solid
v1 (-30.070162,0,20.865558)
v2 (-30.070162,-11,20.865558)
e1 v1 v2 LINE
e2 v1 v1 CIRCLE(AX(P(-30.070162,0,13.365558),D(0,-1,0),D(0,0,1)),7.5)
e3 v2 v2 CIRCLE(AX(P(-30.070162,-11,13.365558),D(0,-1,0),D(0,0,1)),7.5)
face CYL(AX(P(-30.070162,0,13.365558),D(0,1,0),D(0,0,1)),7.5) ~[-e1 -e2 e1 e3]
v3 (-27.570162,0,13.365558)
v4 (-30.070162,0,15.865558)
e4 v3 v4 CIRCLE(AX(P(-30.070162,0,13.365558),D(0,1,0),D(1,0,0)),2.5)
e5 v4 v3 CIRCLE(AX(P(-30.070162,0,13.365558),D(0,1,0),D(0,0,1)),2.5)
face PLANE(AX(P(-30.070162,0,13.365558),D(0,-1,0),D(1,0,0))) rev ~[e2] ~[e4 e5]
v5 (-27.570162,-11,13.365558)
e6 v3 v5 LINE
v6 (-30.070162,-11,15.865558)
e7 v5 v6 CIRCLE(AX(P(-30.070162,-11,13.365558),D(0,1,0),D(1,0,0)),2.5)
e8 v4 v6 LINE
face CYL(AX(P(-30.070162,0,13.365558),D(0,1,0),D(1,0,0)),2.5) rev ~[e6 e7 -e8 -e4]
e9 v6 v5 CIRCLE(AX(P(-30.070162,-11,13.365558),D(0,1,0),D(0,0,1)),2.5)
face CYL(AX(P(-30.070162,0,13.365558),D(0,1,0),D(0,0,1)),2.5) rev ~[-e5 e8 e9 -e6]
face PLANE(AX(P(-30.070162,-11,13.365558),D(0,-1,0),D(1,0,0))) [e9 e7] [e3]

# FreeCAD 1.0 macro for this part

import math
import FreeCAD as App
import Part
import Sketcher

doc = App.newDocument("Part")
params = doc.addObject("Spreadsheet::Sheet", "Params")
for row, (alias, value) in enumerate([
    ("sketch1_diameter", "15 mm"),
    ("sketch1_radius", "79 mm"),
    ("pad1_length", "8 mm"),
    ("sketch2_radius", "79 mm"),
    ("sketch2_radius2", "2 mm"),
    ("pad2_length", "3 mm"),
    ("sketch3_diameter", "15 mm"),
    ("sketch3_radius", "2.5 mm"),
    ("pad3_length", "11 mm"),
], start=1):
    params.set(f"A{row}", alias)
    params.set(f"B{row}", "=" + value)
    params.setAlias(f"B{row}", alias)

body = doc.addObject("PartDesign::Body", "Body")

# Sketch on XZ plane
sketch1 = body.newObject("Sketcher::SketchObject", "Sketch")
sketch1.AttachmentSupport = (doc.getObject("XZ_Plane"), [""])
sketch1.MapMode = "FlatFace"
sketch1.addGeometry(Part.ArcOfCircle(Part.Circle(App.Vector(-30, 125, 0), App.Vector(0, 0, 1), 79), math.radians(-98.07), math.radians(-90)), False)
sketch1.addGeometry(Part.ArcOfCircle(Part.Circle(App.Vector(-30, 13, 0), App.Vector(0, 0, 1), 36), math.radians(108), math.radians(432)), False)
sketch1.addGeometry(Part.ArcOfCircle(Part.Circle(App.Vector(-30, 125, 0), App.Vector(0, 0, 1), 79), math.radians(-90), math.radians(-81.93)), False)
sketch1.addGeometry(Part.Circle(App.Vector(-30, 13, 0), App.Vector(0, 0, 1), 8), False)
sketch1.addConstraint(Sketcher.Constraint("Coincident", 0, 1, 1, 1))
sketch1.addConstraint(Sketcher.Constraint("Coincident", 1, 2, 2, 2))
sketch1.addConstraint(Sketcher.Constraint("Tangent", 2, 1, 0, 2))
sketch1.addConstraint(Sketcher.Constraint("Coincident", 3, 3, 1, 3))
sketch1.addConstraint(Sketcher.Constraint("Equal", 0, 2))
sketch1.addConstraint(Sketcher.Constraint("Horizontal", 0, 1, 1, 2))
sketch1.addConstraint(Sketcher.Constraint("Vertical", 3, 3, 2, 1))
sketch1.addConstraint(Sketcher.Constraint("Diameter", 3, 15.0))
sketch1.addConstraint(Sketcher.Constraint("Radius", 0, 79.0))
sketch1.addConstraint(Sketcher.Constraint("Radius", 1, 35.565326))
sketch1.addConstraint(Sketcher.Constraint("DistanceX", 0, 3, -1, 1, 30.070162))
sketch1.addConstraint(Sketcher.Constraint("DistanceY", -1, 1, 0, 3, 125.37237))
sketch1.addConstraint(Sketcher.Constraint("DistanceY", -1, 1, 1, 3, 13.365558))
sketch1.setExpression("Constraints[7]", "Params.sketch1_diameter")
sketch1.setExpression("Constraints[8]", "Params.sketch1_radius")
pad1 = body.newObject("PartDesign::Pad", "Pad")
pad1.Profile = sketch1
pad1.setExpression("Length", "Params.pad1_length")

# Sketch on XZ plane
sketch2 = body.newObject("Sketcher::SketchObject", "Sketch001")
sketch2.AttachmentSupport = (doc.getObject("XZ_Plane"), [""])
sketch2.MapMode = "FlatFace"
sketch2.addGeometry(Part.ArcOfCircle(Part.Circle(App.Vector(-28.6, 43.2, 0), App.Vector(0, 0, 1), 13.2), math.radians(96), math.radians(162)), False)
sketch2.addGeometry(Part.ArcOfCircle(Part.Circle(App.Vector(-30.1, 125.4, 0), App.Vector(0, 0, 1), 79), math.radians(-98.07), math.radians(-90)), False)
sketch2.addGeometry(Part.ArcOfCircle(Part.Circle(App.Vector(-30.1, 125.4, 0), App.Vector(0, 0, 1), 79), math.radians(-90), math.radians(-81.93)), False)
sketch2.addGeometry(Part.ArcOfCircle(Part.Circle(App.Vector(-31.6, 43.2, 0), App.Vector(0, 0, 1), 13.2), math.radians(18), math.radians(84)), False)
sketch2.addGeometry(Part.ArcOfCircle(Part.Circle(App.Vector(-30.1, 52.7, 0), App.Vector(0, 0, 1), 2), math.radians(90), math.radians(270)), False)
sketch2.addGeometry(Part.ArcOfCircle(Part.Circle(App.Vector(-30.1, 52.7, 0), App.Vector(0, 0, 1), 2), math.radians(0), math.radians(90)), False)
sketch2.addGeometry(Part.ArcOfCircle(Part.Circle(App.Vector(-30.1, 52.7, 0), App.Vector(0, 0, 1), 2), math.radians(-90), math.radians(0)), False)
sketch2.addConstraint(Sketcher.Constraint("Coincident", 0, 2, 1, 1))
sketch2.addConstraint(Sketcher.Constraint("Tangent", 1, 2, 2, 1))
sketch2.addConstraint(Sketcher.Constraint("Coincident", 2, 2, 3, 1))
sketch2.addConstraint(Sketcher.Constraint("Coincident", 3, 2, 0, 1))
sketch2.addConstraint(Sketcher.Constraint("Tangent", 4, 1, 5, 2))
sketch2.addConstraint(Sketcher.Constraint("Tangent", 5, 1, 6, 2))
sketch2.addConstraint(Sketcher.Constraint("Tangent", 6, 1, 4, 2))
sketch2.addConstraint(Sketcher.Constraint("Equal", 1, 2))
sketch2.addConstraint(Sketcher.Constraint("Equal", 0, 3))
sketch2.addConstraint(Sketcher.Constraint("Horizontal", 0, 3, 3, 3))
sketch2.addConstraint(Sketcher.Constraint("Horizontal", 0, 2, 2, 2))
sketch2.addConstraint(Sketcher.Constraint("Horizontal", 6, 3, 5, 1))
sketch2.addConstraint(Sketcher.Constraint("Vertical", 2, 3, 4, 3))
sketch2.addConstraint(Sketcher.Constraint("Vertical", 6, 3, 1, 2))
sketch2.addConstraint(Sketcher.Constraint("Vertical", 3, 2, 4, 1))
sketch2.addConstraint(Sketcher.Constraint("Vertical", 4, 1, 6, 1))
sketch2.addConstraint(Sketcher.Constraint("Radius", 1, 79.0))
sketch2.addConstraint(Sketcher.Constraint("Radius", 4, 2.0))
sketch2.addConstraint(Sketcher.Constraint("Radius", 0, 13.212))
sketch2.addConstraint(Sketcher.Constraint("DistanceX", 0, 3, -1, 1, 28.5756))
sketch2.addConstraint(Sketcher.Constraint("DistanceX", 1, 3, -1, 1, 30.070162))
sketch2.addConstraint(Sketcher.Constraint("DistanceY", -1, 1, 1, 3, 125.37237))
sketch2.addConstraint(Sketcher.Constraint("DistanceY", -1, 1, 4, 3, 52.721558))
sketch2.addConstraint(Sketcher.Constraint("DistanceX", 0, 2, -1, 1, 41.166509))
sketch2.setExpression("Constraints[16]", "Params.sketch2_radius")
sketch2.setExpression("Constraints[17]", "Params.sketch2_radius2")
pad2 = body.newObject("PartDesign::Pad", "Pad001")
pad2.Profile = sketch2
pad2.setExpression("Length", "Params.pad2_length")
body2 = doc.addObject("PartDesign::Body", "Body001")

# Sketch on XZ plane
sketch3 = body2.newObject("Sketcher::SketchObject", "Sketch002")
sketch3.AttachmentSupport = (doc.getObject("XZ_Plane001"), [""])
sketch3.MapMode = "FlatFace"
sketch3.addGeometry(Part.Circle(App.Vector(-30.1, 13.4, 0), App.Vector(0, 0, 1), 7.5), False)
sketch3.addGeometry(Part.ArcOfCircle(Part.Circle(App.Vector(-30.1, 13.4, 0), App.Vector(0, 0, 1), 2.5), math.radians(0), math.radians(90)), False)
sketch3.addGeometry(Part.ArcOfCircle(Part.Circle(App.Vector(-30.1, 13.4, 0), App.Vector(0, 0, 1), 2.5), math.radians(90), math.radians(360)), False)
sketch3.addConstraint(Sketcher.Constraint("Tangent", 1, 1, 2, 2))
sketch3.addConstraint(Sketcher.Constraint("Coincident", 2, 1, 1, 2))
sketch3.addConstraint(Sketcher.Constraint("Coincident", 1, 3, 0, 3))
sketch3.addConstraint(Sketcher.Constraint("Horizontal", 2, 3, 1, 1))
sketch3.addConstraint(Sketcher.Constraint("Vertical", 1, 3, 2, 1))
sketch3.addConstraint(Sketcher.Constraint("Diameter", 0, 15.0))
sketch3.addConstraint(Sketcher.Constraint("Radius", 1, 2.5))
sketch3.addConstraint(Sketcher.Constraint("DistanceX", 0, 3, -1, 1, 30.070162))
sketch3.addConstraint(Sketcher.Constraint("DistanceY", -1, 1, 0, 3, 13.365558))
sketch3.setExpression("Constraints[5]", "Params.sketch3_diameter")
sketch3.setExpression("Constraints[6]", "Params.sketch3_radius")
pad3 = body2.newObject("PartDesign::Pad", "Pad002")
pad3.Profile = sketch3
pad3.setExpression("Length", "Params.pad3_length")
body.Visibility = False

doc.recompute()
